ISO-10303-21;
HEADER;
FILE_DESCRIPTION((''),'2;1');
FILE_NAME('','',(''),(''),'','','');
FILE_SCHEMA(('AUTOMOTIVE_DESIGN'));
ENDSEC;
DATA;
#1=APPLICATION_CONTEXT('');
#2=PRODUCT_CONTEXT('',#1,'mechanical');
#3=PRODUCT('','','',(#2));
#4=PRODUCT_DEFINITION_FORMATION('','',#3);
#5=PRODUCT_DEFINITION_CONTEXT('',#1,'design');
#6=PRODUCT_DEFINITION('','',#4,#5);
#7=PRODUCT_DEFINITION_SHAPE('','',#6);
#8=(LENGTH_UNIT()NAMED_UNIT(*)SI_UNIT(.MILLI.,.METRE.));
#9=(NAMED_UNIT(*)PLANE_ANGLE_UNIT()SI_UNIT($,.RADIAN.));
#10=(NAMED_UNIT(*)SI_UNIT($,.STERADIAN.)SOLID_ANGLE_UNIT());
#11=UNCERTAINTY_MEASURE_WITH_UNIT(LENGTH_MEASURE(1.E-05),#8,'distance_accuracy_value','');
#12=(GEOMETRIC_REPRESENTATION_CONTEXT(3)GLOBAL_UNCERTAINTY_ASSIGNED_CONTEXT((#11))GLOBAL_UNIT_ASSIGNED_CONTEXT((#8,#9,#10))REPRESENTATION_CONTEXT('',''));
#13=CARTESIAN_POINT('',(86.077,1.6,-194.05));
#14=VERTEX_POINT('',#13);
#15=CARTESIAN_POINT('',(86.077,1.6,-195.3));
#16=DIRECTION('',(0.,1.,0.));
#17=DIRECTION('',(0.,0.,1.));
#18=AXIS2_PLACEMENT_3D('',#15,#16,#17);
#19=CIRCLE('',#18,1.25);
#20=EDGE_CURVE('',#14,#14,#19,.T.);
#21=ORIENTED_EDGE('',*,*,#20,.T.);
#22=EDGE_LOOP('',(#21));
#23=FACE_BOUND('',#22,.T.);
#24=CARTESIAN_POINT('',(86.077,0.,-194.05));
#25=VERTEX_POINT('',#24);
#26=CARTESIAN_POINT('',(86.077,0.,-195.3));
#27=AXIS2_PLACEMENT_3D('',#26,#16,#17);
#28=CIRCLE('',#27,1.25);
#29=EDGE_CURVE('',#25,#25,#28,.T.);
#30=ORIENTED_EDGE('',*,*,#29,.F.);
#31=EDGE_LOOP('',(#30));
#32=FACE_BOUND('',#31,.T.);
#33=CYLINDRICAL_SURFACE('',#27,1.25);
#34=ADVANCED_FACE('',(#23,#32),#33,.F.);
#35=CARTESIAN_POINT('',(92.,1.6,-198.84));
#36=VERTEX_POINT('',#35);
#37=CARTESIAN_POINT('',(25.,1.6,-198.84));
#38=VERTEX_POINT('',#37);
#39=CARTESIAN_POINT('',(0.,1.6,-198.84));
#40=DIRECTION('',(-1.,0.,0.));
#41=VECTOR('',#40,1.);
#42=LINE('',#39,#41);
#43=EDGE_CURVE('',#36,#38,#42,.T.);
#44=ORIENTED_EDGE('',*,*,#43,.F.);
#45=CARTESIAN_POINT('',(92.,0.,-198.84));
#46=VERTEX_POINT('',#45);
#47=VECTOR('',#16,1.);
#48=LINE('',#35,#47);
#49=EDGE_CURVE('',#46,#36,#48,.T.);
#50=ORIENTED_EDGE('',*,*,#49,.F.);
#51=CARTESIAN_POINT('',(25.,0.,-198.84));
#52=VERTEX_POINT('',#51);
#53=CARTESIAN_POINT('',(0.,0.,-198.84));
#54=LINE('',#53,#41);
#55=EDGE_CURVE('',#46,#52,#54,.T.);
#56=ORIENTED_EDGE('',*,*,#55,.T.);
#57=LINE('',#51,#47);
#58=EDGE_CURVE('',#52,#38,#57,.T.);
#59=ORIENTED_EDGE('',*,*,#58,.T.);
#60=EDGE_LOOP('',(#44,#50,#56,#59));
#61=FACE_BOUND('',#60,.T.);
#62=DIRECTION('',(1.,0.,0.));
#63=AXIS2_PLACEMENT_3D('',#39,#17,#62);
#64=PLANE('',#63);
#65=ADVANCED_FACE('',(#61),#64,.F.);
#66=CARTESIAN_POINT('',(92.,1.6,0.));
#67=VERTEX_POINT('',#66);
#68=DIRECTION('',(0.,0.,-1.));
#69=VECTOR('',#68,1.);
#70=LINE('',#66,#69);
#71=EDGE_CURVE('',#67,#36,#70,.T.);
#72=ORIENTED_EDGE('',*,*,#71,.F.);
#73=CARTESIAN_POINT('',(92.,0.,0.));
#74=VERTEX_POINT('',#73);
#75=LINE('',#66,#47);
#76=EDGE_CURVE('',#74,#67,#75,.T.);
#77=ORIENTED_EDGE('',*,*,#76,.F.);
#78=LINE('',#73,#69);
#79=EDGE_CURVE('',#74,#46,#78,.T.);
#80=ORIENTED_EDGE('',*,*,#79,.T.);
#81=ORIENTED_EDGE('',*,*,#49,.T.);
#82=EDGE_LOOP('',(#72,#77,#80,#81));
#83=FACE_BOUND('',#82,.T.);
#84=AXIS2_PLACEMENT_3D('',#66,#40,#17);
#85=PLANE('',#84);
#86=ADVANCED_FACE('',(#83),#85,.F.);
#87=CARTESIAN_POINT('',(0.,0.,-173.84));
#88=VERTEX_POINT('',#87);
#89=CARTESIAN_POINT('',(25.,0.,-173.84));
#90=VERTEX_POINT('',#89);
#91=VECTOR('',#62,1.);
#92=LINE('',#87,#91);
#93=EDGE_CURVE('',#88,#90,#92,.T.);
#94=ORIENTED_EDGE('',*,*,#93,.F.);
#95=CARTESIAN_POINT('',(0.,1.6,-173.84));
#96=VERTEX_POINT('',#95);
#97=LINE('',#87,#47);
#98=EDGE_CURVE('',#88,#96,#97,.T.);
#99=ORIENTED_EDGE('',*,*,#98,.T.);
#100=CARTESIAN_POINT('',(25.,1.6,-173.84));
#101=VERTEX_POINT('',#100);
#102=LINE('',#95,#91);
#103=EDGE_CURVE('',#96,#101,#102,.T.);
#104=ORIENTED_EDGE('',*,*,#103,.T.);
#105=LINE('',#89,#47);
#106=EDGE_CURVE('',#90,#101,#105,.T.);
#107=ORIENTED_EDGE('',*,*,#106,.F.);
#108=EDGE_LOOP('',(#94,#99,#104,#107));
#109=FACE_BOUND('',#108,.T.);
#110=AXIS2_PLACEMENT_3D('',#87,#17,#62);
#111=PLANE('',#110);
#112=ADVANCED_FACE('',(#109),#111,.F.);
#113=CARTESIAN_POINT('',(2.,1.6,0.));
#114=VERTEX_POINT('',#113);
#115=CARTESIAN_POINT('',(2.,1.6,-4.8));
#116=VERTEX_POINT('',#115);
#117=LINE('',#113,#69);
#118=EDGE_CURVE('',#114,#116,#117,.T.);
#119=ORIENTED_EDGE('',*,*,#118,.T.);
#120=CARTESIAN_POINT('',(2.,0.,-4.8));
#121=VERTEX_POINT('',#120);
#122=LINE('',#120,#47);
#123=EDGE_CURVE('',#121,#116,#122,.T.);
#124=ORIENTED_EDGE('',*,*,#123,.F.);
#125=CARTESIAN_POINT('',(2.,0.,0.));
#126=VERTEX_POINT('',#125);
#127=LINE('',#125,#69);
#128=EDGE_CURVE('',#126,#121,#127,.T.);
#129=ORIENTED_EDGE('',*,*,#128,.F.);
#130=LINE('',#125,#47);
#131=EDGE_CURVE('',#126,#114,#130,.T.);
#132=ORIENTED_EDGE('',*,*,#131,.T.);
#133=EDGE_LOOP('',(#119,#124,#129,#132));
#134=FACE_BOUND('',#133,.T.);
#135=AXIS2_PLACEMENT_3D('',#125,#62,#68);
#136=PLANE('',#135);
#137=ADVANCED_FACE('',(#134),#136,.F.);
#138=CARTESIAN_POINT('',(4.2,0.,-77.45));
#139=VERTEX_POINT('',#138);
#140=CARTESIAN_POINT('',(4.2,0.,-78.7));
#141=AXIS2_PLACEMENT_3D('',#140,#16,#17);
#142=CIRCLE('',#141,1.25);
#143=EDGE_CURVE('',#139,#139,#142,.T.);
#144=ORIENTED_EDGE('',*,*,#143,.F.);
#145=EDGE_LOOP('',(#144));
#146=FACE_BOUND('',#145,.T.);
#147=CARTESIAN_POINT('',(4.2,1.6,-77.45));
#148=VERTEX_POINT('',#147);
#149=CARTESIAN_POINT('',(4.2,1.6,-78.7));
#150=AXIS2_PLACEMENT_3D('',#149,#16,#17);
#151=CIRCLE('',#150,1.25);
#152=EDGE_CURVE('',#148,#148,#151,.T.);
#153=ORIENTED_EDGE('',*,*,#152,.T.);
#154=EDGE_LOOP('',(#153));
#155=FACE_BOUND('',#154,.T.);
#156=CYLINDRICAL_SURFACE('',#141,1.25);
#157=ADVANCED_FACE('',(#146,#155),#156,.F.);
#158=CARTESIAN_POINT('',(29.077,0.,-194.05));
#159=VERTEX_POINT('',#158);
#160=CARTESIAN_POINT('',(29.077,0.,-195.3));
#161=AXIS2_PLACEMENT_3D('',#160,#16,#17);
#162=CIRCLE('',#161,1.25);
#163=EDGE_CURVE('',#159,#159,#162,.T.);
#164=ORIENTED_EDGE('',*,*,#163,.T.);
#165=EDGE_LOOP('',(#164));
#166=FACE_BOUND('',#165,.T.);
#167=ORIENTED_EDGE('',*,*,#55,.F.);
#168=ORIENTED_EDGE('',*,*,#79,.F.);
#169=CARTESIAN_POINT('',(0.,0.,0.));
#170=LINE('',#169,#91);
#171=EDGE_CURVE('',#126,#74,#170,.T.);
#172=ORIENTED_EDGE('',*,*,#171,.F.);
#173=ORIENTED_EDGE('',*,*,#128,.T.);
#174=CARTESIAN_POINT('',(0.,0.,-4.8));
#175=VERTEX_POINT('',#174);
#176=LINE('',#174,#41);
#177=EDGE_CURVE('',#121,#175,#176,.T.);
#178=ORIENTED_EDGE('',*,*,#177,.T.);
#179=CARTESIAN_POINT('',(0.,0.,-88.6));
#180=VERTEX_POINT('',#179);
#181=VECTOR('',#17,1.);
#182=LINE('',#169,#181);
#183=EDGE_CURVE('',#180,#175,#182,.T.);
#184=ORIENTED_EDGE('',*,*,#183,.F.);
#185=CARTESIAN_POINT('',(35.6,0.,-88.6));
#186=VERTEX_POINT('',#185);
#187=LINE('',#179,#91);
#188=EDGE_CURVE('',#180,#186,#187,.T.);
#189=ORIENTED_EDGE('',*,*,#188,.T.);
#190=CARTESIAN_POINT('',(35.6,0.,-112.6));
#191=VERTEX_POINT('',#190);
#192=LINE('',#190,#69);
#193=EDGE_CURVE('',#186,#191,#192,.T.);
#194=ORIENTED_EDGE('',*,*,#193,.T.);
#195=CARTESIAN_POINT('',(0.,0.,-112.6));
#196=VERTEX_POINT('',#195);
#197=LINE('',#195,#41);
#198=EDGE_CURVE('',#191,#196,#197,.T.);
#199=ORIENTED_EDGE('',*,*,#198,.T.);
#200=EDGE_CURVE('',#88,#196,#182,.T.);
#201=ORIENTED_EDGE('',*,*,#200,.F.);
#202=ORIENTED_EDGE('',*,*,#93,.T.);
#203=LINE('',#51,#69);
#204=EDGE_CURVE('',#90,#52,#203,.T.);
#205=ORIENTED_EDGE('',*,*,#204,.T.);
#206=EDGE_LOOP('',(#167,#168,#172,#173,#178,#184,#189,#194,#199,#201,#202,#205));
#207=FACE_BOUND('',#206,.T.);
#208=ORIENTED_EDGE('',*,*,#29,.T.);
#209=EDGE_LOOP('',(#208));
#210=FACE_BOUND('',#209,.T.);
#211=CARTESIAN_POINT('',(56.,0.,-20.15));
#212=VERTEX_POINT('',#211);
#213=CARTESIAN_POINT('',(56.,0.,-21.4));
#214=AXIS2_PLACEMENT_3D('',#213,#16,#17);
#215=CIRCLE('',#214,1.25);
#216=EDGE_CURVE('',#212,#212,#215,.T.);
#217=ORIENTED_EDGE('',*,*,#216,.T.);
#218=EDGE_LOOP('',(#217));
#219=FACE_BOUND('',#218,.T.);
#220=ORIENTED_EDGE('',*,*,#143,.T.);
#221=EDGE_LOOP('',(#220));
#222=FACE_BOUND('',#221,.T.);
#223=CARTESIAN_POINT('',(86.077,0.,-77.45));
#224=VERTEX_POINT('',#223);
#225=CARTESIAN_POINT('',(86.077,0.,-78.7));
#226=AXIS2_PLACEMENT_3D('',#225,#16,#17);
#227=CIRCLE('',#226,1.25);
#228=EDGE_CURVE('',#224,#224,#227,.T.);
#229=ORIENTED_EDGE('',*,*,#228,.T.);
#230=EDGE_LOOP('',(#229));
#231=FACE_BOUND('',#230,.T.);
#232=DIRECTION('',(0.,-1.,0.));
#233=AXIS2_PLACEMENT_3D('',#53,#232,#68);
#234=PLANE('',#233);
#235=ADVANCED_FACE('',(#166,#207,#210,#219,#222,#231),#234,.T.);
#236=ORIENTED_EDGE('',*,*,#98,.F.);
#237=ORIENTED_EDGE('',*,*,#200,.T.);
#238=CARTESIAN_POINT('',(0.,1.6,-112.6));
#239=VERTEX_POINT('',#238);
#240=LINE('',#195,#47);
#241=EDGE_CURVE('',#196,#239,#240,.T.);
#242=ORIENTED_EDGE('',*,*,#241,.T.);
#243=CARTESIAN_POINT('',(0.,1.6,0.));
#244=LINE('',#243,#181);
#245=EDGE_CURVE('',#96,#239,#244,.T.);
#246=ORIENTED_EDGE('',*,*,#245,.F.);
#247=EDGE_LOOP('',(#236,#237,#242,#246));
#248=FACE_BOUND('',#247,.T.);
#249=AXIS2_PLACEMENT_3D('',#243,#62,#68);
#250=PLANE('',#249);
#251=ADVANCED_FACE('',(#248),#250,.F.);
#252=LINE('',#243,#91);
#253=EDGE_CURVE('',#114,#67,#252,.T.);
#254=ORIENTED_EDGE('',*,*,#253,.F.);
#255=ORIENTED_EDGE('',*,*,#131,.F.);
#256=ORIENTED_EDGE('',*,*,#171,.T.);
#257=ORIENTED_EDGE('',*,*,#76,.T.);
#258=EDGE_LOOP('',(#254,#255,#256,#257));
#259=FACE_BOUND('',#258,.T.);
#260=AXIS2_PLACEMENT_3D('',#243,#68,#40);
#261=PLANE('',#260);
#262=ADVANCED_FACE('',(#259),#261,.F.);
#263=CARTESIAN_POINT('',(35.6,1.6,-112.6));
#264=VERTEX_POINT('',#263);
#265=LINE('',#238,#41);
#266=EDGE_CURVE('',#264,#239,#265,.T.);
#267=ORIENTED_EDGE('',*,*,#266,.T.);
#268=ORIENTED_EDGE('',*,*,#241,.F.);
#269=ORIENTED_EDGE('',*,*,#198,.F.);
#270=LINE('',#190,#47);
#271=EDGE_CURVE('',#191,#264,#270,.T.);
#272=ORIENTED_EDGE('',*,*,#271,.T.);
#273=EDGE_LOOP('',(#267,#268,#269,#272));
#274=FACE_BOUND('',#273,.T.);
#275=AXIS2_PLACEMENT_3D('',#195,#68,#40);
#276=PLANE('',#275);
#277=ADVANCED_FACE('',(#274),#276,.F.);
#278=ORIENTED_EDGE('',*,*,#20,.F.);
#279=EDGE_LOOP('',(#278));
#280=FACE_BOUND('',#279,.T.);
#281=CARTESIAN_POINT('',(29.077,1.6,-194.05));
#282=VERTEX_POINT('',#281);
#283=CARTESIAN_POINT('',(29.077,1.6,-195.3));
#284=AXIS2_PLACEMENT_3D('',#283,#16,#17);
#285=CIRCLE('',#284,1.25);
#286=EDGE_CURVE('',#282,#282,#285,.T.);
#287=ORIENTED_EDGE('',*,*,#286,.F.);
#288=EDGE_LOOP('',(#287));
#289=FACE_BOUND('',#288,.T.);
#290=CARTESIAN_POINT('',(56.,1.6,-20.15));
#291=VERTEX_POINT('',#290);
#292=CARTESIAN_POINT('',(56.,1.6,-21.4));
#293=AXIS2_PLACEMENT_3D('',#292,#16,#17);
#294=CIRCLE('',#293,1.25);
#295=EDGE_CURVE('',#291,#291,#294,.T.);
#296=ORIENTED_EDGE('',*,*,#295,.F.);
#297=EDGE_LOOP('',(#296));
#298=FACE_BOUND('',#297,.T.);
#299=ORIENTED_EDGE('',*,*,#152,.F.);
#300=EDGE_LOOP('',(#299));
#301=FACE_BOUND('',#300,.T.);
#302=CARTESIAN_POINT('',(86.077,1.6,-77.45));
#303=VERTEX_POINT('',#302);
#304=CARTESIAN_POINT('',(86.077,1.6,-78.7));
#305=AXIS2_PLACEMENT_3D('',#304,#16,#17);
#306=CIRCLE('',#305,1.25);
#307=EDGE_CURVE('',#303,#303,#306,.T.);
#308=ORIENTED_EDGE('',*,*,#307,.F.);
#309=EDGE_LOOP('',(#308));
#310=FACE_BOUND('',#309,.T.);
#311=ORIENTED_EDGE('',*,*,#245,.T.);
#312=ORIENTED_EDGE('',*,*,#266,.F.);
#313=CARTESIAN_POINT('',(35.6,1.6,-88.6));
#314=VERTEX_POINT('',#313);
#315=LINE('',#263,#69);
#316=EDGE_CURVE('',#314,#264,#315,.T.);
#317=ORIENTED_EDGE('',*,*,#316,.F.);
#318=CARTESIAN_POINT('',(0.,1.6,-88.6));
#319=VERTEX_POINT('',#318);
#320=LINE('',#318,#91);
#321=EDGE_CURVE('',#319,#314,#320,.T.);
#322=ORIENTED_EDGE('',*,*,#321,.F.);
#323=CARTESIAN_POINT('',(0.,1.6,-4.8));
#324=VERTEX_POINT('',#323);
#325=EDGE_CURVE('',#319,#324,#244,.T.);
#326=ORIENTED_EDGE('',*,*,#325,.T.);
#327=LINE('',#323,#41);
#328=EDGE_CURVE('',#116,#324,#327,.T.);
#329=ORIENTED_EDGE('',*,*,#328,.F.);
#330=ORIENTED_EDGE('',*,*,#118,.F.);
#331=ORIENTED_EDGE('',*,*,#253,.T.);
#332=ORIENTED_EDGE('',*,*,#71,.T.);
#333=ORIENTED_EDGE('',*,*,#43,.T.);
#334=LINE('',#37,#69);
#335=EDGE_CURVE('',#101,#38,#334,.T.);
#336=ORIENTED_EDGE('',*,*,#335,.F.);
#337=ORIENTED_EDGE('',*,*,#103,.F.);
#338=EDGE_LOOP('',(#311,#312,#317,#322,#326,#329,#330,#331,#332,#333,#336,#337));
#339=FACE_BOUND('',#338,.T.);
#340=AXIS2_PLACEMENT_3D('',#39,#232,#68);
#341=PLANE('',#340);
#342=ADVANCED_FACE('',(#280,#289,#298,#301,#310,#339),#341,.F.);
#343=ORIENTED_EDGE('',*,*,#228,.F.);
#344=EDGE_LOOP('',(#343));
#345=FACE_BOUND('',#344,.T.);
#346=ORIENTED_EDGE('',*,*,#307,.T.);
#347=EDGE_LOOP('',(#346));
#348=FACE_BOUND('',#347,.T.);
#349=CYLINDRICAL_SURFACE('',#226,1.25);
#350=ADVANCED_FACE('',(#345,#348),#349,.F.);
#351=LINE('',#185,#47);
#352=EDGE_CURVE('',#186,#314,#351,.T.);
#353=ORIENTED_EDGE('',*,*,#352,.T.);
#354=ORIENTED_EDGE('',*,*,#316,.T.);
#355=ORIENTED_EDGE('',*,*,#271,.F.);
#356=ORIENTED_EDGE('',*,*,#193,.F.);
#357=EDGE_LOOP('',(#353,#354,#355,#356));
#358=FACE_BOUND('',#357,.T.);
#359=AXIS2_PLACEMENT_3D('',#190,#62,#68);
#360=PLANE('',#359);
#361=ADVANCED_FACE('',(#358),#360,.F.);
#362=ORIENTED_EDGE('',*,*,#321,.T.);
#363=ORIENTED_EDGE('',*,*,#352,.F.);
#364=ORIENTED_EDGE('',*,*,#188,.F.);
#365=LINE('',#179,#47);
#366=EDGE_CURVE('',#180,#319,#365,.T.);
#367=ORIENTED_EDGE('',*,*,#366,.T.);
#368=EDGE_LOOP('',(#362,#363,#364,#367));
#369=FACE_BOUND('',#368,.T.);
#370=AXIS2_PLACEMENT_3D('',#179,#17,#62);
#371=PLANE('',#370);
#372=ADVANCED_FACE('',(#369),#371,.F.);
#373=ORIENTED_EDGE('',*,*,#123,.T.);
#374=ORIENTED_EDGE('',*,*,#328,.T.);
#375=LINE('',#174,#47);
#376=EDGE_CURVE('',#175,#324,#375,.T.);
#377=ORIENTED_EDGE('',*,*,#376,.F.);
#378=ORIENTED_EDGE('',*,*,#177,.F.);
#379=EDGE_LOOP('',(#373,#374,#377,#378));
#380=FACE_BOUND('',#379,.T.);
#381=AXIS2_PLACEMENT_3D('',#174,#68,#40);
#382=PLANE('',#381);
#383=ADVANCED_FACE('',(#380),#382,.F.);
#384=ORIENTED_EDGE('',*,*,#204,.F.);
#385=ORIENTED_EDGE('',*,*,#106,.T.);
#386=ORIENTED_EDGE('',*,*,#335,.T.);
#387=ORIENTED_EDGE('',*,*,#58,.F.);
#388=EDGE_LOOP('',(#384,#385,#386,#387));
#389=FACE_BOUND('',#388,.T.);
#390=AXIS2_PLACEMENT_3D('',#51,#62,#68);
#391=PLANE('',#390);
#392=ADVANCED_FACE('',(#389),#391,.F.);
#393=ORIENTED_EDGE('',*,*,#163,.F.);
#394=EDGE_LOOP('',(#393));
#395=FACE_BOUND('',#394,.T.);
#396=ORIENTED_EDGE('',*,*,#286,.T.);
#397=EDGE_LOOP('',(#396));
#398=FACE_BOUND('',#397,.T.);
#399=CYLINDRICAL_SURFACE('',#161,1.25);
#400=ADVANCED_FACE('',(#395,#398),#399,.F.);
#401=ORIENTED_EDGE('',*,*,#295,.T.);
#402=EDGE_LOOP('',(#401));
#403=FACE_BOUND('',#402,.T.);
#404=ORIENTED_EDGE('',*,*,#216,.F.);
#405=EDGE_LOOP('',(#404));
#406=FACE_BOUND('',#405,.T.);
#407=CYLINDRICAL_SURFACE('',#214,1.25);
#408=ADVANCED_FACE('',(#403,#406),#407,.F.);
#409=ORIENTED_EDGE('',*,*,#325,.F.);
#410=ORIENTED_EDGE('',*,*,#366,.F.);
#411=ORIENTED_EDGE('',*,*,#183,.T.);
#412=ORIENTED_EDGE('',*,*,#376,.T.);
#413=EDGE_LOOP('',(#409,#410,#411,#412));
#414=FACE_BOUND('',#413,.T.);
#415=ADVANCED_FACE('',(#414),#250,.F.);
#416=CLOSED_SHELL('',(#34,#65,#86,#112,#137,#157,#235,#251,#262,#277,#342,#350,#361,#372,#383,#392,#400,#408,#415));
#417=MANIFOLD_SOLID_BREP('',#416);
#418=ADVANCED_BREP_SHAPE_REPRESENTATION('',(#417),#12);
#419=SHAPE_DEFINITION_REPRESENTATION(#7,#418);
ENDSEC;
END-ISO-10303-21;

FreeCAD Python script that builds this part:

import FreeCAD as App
import Part
import Sketcher
from FreeCAD import Vector


def add_polygon(sketch, points):
    """Adds a closed chain of lines whose ends are joined by coincident constraints."""
    first, n = sketch.GeometryCount, len(points)
    for a, b in zip(points, points[1:] + points[:1]):
        sketch.addGeometry(Part.LineSegment(App.Vector(*a, 0), App.Vector(*b, 0)), False)
    for i in range(n):
        sketch.addConstraint(Sketcher.Constraint("Coincident", first + i, 2, first + (i + 1) % n, 1))

doc = App.newDocument("Part")
body = doc.addObject("PartDesign::Body", "Body")

# Sketch on XZ plane
sketch1 = doc.addObject("Sketcher::SketchObject", "Sketch")
body.addObject(sketch1)
sketch1.AttachmentSupport = (doc.XZ_Plane, [""])
sketch1.MapMode = "FlatFace"
add_polygon(sketch1, [(0, -199), (0, 0), (93, 0), (93, -199)])  # lines 0-3
sketch1.addConstraint([
    Sketcher.Constraint("Vertical", 0),
    Sketcher.Constraint("Horizontal", 1),
    Sketcher.Constraint("Vertical", 2),
    Sketcher.Constraint("Horizontal", 3),
    Sketcher.Constraint("Coincident", 0, 2, -1, 1),
    Sketcher.Constraint("DistanceX", 1, 1, 1, 2, 93.0),
    Sketcher.Constraint("DistanceY", 0, 1, 0, 2, 198.84),
])
pad1 = doc.addObject("PartDesign::Pad", "Pad")
body.addObject(pad1)
pad1.Profile = sketch1
pad1.Length = 1.6
pad1.Reversed = True

# Sketch on XZ plane
sketch2 = doc.addObject("Sketcher::SketchObject", "Sketch001")
body.addObject(sketch2)
sketch2.AttachmentSupport = (doc.XZ_Plane, [""])
sketch2.MapMode = "FlatFace"
sketch2.AttachmentOffset = App.Placement(Vector(0, 0, -1.6), App.Rotation())
add_polygon(sketch2, [(2, 0), (2, -4.8), (0, -4.8), (0, 0)])  # lines 0-3
sketch2.addConstraint([
    Sketcher.Constraint("Vertical", 0),
    Sketcher.Constraint("Horizontal", 1),
    Sketcher.Constraint("Vertical", 2),
    Sketcher.Constraint("Horizontal", 3),
    Sketcher.Constraint("Coincident", 2, 2, -1, 1),
    Sketcher.Constraint("DistanceX", 1, 2, 1, 1, 2.0),
    Sketcher.Constraint("DistanceY", 0, 2, 0, 1, 4.8),
])
pocket1 = doc.addObject("PartDesign::Pocket", "Pocket")
body.addObject(pocket1)
pocket1.Profile = sketch2
pocket1.Type = "ThroughAll"
pocket1.Reversed = True

# Sketch on XZ plane
sketch3 = doc.addObject("Sketcher::SketchObject", "Sketch002")
body.addObject(sketch3)
sketch3.AttachmentSupport = (doc.XZ_Plane, [""])
sketch3.MapMode = "FlatFace"
sketch3.AttachmentOffset = App.Placement(Vector(0, 0, -1.6), App.Rotation())
add_polygon(sketch3, [(36, -89), (36, -113), (0, -113), (0, -89)])  # lines 0-3
sketch3.addConstraint([
    Sketcher.Constraint("Vertical", 0),
    Sketcher.Constraint("Horizontal", 1),
    Sketcher.Constraint("Vertical", 2),
    Sketcher.Constraint("Horizontal", 3),
    Sketcher.Constraint("PointOnObject", 1, 2, -2),
    Sketcher.Constraint("DistanceY", 0, 2, 0, 1, 24.0),
    Sketcher.Constraint("DistanceX", 1, 2, 1, 1, 35.6),
    Sketcher.Constraint("DistanceY", 0, 2, -1, 1, 112.6),
])
pocket2 = doc.addObject("PartDesign::Pocket", "Pocket001")
body.addObject(pocket2)
pocket2.Profile = sketch3
pocket2.Type = "ThroughAll"
pocket2.Reversed = True

# Sketch on XZ plane
sketch4 = doc.addObject("Sketcher::SketchObject", "Sketch003")
body.addObject(sketch4)
sketch4.AttachmentSupport = (doc.XZ_Plane, [""])
sketch4.MapMode = "FlatFace"
sketch4.AttachmentOffset = App.Placement(Vector(0, 0, -1.6), App.Rotation())
add_polygon(sketch4, [(25, -174), (25, -199), (0, -199), (0, -174)])  # lines 0-3
sketch4.addConstraint([
    Sketcher.Constraint("Vertical", 0),
    Sketcher.Constraint("Horizontal", 1),
    Sketcher.Constraint("Vertical", 2),
    Sketcher.Constraint("Horizontal", 3),
    Sketcher.Constraint("PointOnObject", 1, 2, -2),
    Sketcher.Constraint("Equal", 3, 0),
    Sketcher.Constraint("DistanceX", 1, 2, 1, 1, 25.0),
    Sketcher.Constraint("DistanceY", 0, 2, -1, 1, 198.84),
])
pocket3 = doc.addObject("PartDesign::Pocket", "Pocket002")
body.addObject(pocket3)
pocket3.Profile = sketch4
pocket3.Type = "ThroughAll"
pocket3.Reversed = True

# Sketch on XZ plane
sketch5 = doc.addObject("Sketcher::SketchObject", "Sketch004")
body.addObject(sketch5)
sketch5.AttachmentSupport = (doc.XZ_Plane, [""])
sketch5.MapMode = "FlatFace"
sketch5.AttachmentOffset = App.Placement(Vector(0, 0, -1.6), App.Rotation())
sketch5.addGeometry([
    Part.Circle(Vector(29.1, -195.3, 0), Vector(0, 0, 1), 1.2),
    Part.Circle(Vector(86.1, -195.3, 0), Vector(0, 0, 1), 1.2),
    Part.Circle(Vector(4.2, -78.7, 0), Vector(0, 0, 1), 1.2),
    Part.Circle(Vector(86.1, -78.7, 0), Vector(0, 0, 1), 1.2),
], False)
sketch5.addConstraint([
    Sketcher.Constraint("Equal", 0, 1),
    Sketcher.Constraint("Equal", 1, 2),
    Sketcher.Constraint("Equal", 2, 3),
    Sketcher.Constraint("Horizontal", 0, 3, 1, 3),
    Sketcher.Constraint("Horizontal", 2, 3, 3, 3),
    Sketcher.Constraint("Vertical", 1, 3, 3, 3),
    Sketcher.Constraint("Diameter", 0, 2.5),
    Sketcher.Constraint("DistanceX", 0, 3, 1, 3, 57.0),
    Sketcher.Constraint("DistanceY", 0, 3, -1, 1, 195.3),
    Sketcher.Constraint("DistanceX", -1, 1, 2, 3, 4.2),
    Sketcher.Constraint("DistanceY", 2, 3, -1, 1, 78.7),
    Sketcher.Constraint("DistanceX", -1, 1, 0, 3, 29.077),
])
pocket4 = doc.addObject("PartDesign::Pocket", "Pocket003")
body.addObject(pocket4)
pocket4.Profile = sketch5
pocket4.Type = "ThroughAll"
pocket4.Reversed = True

# Sketch on XZ plane
sketch6 = doc.addObject("Sketcher::SketchObject", "Sketch005")
body.addObject(sketch6)
sketch6.AttachmentSupport = (doc.XZ_Plane, [""])
sketch6.MapMode = "FlatFace"
sketch6.AttachmentOffset = App.Placement(Vector(0, 0, -1.6), App.Rotation())
sketch6.addGeometry(Part.Circle(Vector(56, -21.4, 0), Vector(0, 0, 1), 1.2), False)
sketch6.addConstraint([
    Sketcher.Constraint("Diameter", 0, 2.5),
    Sketcher.Constraint("DistanceX", -1, 1, 0, 3, 56.0),
    Sketcher.Constraint("DistanceY", 0, 3, -1, 1, 21.4),
])
pocket5 = doc.addObject("PartDesign::Pocket", "Pocket004")
body.addObject(pocket5)
pocket5.Profile = sketch6
pocket5.Type = "ThroughAll"
pocket5.Reversed = True

# Sketch on XY plane
sketch7 = doc.addObject("Sketcher::SketchObject", "Sketch006")
body.addObject(sketch7)
sketch7.AttachmentSupport = (doc.XY_Plane, [""])
sketch7.MapMode = "FlatFace"
sketch7.AttachmentOffset = App.Placement(Vector(0, 0, -198.84), App.Rotation())
add_polygon(sketch7, [(93, 1.6), (93, 0), (92, 0), (92, 1.6)])  # lines 0-3
sketch7.addConstraint([
    Sketcher.Constraint("Vertical", 0),
    Sketcher.Constraint("Horizontal", 1),
    Sketcher.Constraint("Vertical", 2),
    Sketcher.Constraint("Horizontal", 3),
    Sketcher.Constraint("PointOnObject", 0, 2, -1),
    Sketcher.Constraint("DistanceX", 1, 2, 1, 1, 1.0),
    Sketcher.Constraint("DistanceY", 0, 2, 0, 1, 1.6),
    Sketcher.Constraint("DistanceX", -1, 1, 0, 2, 93.0),
])
pocket6 = doc.addObject("PartDesign::Pocket", "Pocket005")
body.addObject(pocket6)
pocket6.Profile = sketch7
pocket6.Type = "ThroughAll"
pocket6.Reversed = True

doc.recompute()
